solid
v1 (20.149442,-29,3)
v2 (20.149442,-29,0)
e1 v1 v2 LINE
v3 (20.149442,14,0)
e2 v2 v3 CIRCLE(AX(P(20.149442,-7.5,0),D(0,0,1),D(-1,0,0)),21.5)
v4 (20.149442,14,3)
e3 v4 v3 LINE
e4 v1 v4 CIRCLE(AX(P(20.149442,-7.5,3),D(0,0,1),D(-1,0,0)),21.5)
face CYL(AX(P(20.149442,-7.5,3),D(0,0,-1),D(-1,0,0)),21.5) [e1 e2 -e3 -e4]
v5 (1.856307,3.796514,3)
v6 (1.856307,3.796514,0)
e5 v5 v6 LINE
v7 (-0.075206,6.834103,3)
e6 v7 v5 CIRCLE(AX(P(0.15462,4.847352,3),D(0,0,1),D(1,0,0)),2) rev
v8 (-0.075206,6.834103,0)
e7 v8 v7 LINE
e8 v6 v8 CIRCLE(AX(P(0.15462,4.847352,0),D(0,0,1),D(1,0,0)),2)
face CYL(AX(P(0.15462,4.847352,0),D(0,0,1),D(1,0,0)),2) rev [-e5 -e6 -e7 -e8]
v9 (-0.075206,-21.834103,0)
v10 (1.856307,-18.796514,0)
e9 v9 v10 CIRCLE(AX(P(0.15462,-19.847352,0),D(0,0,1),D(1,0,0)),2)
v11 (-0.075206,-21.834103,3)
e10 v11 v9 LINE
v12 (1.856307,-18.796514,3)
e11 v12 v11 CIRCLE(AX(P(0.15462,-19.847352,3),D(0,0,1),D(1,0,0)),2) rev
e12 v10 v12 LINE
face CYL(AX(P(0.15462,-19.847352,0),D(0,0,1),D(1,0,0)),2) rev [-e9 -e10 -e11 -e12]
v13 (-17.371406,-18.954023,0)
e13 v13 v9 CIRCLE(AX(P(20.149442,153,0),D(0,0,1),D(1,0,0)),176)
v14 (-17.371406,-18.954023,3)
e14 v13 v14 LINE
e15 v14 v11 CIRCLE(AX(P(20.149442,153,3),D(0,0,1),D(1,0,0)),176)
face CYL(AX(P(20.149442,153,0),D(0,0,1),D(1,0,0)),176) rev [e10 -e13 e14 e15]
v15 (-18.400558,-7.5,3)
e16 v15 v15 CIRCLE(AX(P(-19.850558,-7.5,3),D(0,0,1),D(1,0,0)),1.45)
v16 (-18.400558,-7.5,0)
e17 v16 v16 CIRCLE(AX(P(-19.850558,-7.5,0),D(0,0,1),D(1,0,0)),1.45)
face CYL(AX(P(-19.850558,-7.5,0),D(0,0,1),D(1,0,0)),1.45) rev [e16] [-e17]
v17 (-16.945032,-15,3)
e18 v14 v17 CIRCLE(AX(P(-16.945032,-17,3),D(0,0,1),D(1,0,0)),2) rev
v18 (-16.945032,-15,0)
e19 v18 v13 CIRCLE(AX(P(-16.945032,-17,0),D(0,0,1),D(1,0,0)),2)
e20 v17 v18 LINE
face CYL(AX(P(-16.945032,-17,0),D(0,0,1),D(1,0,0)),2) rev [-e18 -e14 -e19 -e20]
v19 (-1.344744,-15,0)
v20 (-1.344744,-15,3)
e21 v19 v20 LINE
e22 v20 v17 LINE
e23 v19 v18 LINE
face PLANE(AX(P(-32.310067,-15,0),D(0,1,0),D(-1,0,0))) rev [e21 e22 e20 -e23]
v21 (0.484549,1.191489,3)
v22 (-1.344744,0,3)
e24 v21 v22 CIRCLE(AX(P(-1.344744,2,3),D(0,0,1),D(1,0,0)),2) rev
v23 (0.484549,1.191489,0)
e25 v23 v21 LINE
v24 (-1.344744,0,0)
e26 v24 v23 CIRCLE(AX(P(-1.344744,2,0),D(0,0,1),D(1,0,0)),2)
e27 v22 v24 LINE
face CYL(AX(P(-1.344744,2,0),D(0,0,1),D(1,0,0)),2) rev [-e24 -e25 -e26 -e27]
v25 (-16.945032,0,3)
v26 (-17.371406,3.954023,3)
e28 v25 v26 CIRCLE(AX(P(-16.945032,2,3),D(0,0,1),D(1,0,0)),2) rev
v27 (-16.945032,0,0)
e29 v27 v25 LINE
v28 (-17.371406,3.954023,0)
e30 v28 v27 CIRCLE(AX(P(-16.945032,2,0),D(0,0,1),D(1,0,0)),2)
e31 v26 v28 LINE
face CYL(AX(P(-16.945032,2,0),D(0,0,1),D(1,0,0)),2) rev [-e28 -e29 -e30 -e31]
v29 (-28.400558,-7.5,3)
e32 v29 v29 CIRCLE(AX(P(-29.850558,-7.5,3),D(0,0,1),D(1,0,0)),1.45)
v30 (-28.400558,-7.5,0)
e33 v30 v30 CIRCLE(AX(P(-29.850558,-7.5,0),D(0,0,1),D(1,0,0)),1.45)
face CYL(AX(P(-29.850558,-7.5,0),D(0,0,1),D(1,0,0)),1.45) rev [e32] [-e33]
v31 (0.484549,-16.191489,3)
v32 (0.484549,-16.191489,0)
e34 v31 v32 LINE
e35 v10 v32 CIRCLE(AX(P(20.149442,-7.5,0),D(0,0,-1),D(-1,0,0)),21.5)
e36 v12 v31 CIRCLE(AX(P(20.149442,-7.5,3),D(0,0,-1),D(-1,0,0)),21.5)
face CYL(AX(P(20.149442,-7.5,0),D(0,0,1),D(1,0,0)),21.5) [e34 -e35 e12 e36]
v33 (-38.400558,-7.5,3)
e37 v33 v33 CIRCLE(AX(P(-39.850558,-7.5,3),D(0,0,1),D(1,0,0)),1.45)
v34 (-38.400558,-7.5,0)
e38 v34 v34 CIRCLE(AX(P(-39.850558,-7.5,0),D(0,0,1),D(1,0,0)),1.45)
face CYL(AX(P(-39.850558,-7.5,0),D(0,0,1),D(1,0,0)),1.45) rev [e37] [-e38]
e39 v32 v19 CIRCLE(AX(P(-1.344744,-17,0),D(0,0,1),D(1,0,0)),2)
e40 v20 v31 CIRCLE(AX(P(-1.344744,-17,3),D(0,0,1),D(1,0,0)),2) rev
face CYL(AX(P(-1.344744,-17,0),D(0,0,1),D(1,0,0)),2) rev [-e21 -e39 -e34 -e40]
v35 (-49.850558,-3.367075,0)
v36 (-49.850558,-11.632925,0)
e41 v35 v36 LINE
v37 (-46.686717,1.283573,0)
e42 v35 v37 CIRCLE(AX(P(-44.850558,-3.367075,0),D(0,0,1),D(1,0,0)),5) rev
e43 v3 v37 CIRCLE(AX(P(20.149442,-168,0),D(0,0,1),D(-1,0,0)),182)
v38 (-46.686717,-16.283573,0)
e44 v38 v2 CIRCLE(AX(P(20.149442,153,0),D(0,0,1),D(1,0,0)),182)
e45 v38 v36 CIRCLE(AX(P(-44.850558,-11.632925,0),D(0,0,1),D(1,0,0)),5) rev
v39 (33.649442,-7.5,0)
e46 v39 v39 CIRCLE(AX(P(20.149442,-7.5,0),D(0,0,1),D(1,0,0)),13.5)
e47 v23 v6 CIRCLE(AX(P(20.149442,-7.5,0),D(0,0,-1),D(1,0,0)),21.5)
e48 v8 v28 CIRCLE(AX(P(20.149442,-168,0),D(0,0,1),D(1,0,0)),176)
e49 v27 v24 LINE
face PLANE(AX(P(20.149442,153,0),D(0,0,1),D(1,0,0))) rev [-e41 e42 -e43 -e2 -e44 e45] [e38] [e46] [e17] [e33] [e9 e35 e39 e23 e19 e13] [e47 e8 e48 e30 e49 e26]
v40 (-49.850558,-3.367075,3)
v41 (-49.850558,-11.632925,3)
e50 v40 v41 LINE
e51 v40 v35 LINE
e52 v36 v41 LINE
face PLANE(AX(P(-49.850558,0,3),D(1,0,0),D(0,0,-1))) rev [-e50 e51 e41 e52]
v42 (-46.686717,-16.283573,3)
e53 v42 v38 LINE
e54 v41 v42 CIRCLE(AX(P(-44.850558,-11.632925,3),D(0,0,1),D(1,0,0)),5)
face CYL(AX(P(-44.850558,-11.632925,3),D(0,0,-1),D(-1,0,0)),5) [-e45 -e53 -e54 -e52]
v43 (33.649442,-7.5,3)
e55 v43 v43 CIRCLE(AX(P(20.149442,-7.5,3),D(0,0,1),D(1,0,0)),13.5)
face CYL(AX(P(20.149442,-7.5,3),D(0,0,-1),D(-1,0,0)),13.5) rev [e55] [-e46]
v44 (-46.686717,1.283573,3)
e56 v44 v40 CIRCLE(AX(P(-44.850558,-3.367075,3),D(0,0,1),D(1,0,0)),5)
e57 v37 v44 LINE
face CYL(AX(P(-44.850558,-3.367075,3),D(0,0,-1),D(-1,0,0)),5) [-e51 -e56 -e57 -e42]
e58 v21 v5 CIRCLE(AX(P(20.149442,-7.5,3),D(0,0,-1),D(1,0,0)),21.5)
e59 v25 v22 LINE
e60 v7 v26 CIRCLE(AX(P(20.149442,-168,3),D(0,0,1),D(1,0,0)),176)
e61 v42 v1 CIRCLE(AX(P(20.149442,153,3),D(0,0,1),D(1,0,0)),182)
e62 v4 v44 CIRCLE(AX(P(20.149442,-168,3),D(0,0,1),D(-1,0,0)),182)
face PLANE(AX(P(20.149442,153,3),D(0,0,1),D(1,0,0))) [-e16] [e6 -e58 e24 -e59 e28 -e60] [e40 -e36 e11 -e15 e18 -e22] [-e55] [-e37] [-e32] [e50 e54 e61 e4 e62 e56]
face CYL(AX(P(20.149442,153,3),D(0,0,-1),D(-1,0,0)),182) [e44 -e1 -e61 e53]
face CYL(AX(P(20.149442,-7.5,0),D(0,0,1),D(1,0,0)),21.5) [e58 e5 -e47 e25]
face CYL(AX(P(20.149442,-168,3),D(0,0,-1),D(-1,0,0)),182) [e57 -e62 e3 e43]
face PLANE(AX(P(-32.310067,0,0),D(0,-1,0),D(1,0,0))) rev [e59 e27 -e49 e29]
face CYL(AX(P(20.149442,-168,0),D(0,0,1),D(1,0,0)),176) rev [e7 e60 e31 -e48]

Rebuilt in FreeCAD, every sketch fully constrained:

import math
import FreeCAD as App
import Part
import Sketcher


def edges_at(feature, points):
    """Names of the edges that pass closest to the given points."""
    edges = feature.Shape.Edges
    near = lambda p: min(range(len(edges)), key=lambda i: edges[i].distToShape(Part.Vertex(*p))[0])
    return sorted({f"Edge{near(p) + 1}" for p in points})

doc = App.newDocument("Part")
params = doc.addObject("Spreadsheet::Sheet", "Params")
for row, (alias, value) in enumerate([
    ("sketch1_diameter", "27 mm"),
    ("sketch1_radius", "182 mm"),
    ("sketch1_radius2", "21.5 mm"),
    ("sketch1_height", "15 mm"),
    ("pad1_length", "3 mm"),
    ("sketch2_diameter", "2.9 mm"),
    ("fillet_radius", "5 mm"),
    ("sketch3_radius", "176 mm"),
    ("sketch3_radius2", "21.5 mm"),
    ("fillet2_radius", "2 mm"),
], start=1):
    params.set(f"A{row}", alias)
    params.set(f"B{row}", "=" + value)
    params.setAlias(f"B{row}", alias)

body = doc.addObject("PartDesign::Body", "Body")

# Sketch on XY plane
sketch1 = body.newObject("Sketcher::SketchObject", "Sketch")
sketch1.AttachmentSupport = (doc.getObject("XY_Plane"), [""])
sketch1.MapMode = "FlatFace"
sketch1.addGeometry(Part.LineSegment(App.Vector(-50, 0, 0), App.Vector(-50, -15, 0)), False)
sketch1.addGeometry(Part.ArcOfCircle(Part.Circle(App.Vector(20, 153, 0), App.Vector(0, 0, 1), 182), math.radians(-113), math.radians(-90)), False)
sketch1.addGeometry(Part.ArcOfCircle(Part.Circle(App.Vector(20, -8, 0), App.Vector(0, 0, 1), 22), math.radians(-90), math.radians(90)), False)
sketch1.addGeometry(Part.ArcOfCircle(Part.Circle(App.Vector(20, -168, 0), App.Vector(0, 0, 1), 182), math.radians(90), math.radians(113)), False)
sketch1.addGeometry(Part.Circle(App.Vector(20, -8, 0), App.Vector(0, 0, 1), 14), False)
sketch1.addConstraint(Sketcher.Constraint("Coincident", 0, 2, 1, 1))
sketch1.addConstraint(Sketcher.Constraint("Tangent", 1, 2, 2, 1))
sketch1.addConstraint(Sketcher.Constraint("Tangent", 2, 2, 3, 1))
sketch1.addConstraint(Sketcher.Constraint("Coincident", 3, 2, 0, 1))
sketch1.addConstraint(Sketcher.Constraint("Vertical", 0))
sketch1.addConstraint(Sketcher.Constraint("Coincident", 4, 3, 2, 3))
sketch1.addConstraint(Sketcher.Constraint("Equal", 1, 3))
sketch1.addConstraint(Sketcher.Constraint("PointOnObject", 3, 2, -1))
sketch1.addConstraint(Sketcher.Constraint("Vertical", 1, 3, 2, 3))
sketch1.addConstraint(Sketcher.Constraint("Vertical", 2, 3, 3, 3))
sketch1.addConstraint(Sketcher.Constraint("Diameter", 4, 27.0))
sketch1.addConstraint(Sketcher.Constraint("Radius", 1, 182.0))
sketch1.addConstraint(Sketcher.Constraint("Radius", 2, 21.5))
sketch1.addConstraint(Sketcher.Constraint("DistanceY", 0, 2, 0, 1, 15.0))
sketch1.addConstraint(Sketcher.Constraint("DistanceX", -1, 1, 1, 3, 20.149442))
sketch1.setExpression("Constraints[10]", "Params.sketch1_diameter")
sketch1.setExpression("Constraints[11]", "Params.sketch1_radius")
sketch1.setExpression("Constraints[12]", "Params.sketch1_radius2")
sketch1.setExpression("Constraints[13]", "Params.sketch1_height")
pad1 = body.newObject("PartDesign::Pad", "Pad")
pad1.Profile = sketch1
pad1.setExpression("Length", "Params.pad1_length")

# Sketch on XY plane
sketch2 = body.newObject("Sketcher::SketchObject", "Sketch001")
sketch2.AttachmentSupport = (doc.getObject("XY_Plane"), [""])
sketch2.MapMode = "FlatFace"
sketch2.AttachmentOffset = App.Placement(App.Vector(0, 0, 3), App.Rotation())
sketch2.addGeometry(Part.Circle(App.Vector(-39.9, -7.5, 0), App.Vector(0, 0, 1), 1.4), False)
sketch2.addGeometry(Part.Circle(App.Vector(-29.9, -7.5, 0), App.Vector(0, 0, 1), 1.4), False)
sketch2.addGeometry(Part.Circle(App.Vector(-19.9, -7.5, 0), App.Vector(0, 0, 1), 1.4), False)
sketch2.addConstraint(Sketcher.Constraint("Equal", 0, 1))
sketch2.addConstraint(Sketcher.Constraint("Equal", 1, 2))
sketch2.addConstraint(Sketcher.Constraint("Horizontal", 0, 3, 1, 3))
sketch2.addConstraint(Sketcher.Constraint("Horizontal", 1, 3, 2, 3))
sketch2.addConstraint(Sketcher.Constraint("Diameter", 0, 2.9))
sketch2.addConstraint(Sketcher.Constraint("DistanceX", 0, 3, 1, 3, 10.0))
sketch2.addConstraint(Sketcher.Constraint("DistanceX", 1, 3, 2, 3, 10.0))
sketch2.addConstraint(Sketcher.Constraint("DistanceY", 0, 3, -1, 1, 7.5))
sketch2.addConstraint(Sketcher.Constraint("DistanceX", 0, 3, -1, 1, 39.850558))
sketch2.setExpression("Constraints[4]", "Params.sketch2_diameter")
pocket1 = body.newObject("PartDesign::Pocket", "Pocket")
pocket1.Profile = sketch2
pocket1.Type = "ThroughAll"
doc.recompute()

fillet = body.newObject("PartDesign::Fillet", "Fillet")
fillet.Base = (pocket1, edges_at(pocket1, [(-49.851, -15, 1.5), (-49.851, 0, 1.5)]))
fillet.setExpression("Radius", "Params.fillet_radius")

# Sketch on XY plane
sketch3 = body.newObject("Sketcher::SketchObject", "Sketch002")
sketch3.AttachmentSupport = (doc.getObject("XY_Plane"), [""])
sketch3.MapMode = "FlatFace"
sketch3.AttachmentOffset = App.Placement(App.Vector(0, 0, 3), App.Rotation())
sketch3.addGeometry(Part.LineSegment(App.Vector(-32, 0, 0), App.Vector(0, 0, 0)), False)
sketch3.addGeometry(Part.ArcOfCircle(Part.Circle(App.Vector(20, -8, 0), App.Vector(0, 0, 1), 22), math.radians(136), math.radians(160)), False)
sketch3.addGeometry(Part.ArcOfCircle(Part.Circle(App.Vector(20, -168, 0), App.Vector(0, 0, 1), 176), math.radians(95.08), math.radians(107.34)), False)
sketch3.addGeometry(Part.LineSegment(App.Vector(0, -15, 0), App.Vector(-32, -15, 0)), False)
sketch3.addGeometry(Part.ArcOfCircle(Part.Circle(App.Vector(20, 153, 0), App.Vector(0, 0, 1), 176), math.radians(-107.34), math.radians(-95.08)), False)
sketch3.addGeometry(Part.ArcOfCircle(Part.Circle(App.Vector(20, -7, 0), App.Vector(0, 0, 1), 22), math.radians(-160), math.radians(-136)), False)
sketch3.addConstraint(Sketcher.Constraint("Coincident", 0, 2, 1, 2))
sketch3.addConstraint(Sketcher.Constraint("Coincident", 1, 1, 2, 1))
sketch3.addConstraint(Sketcher.Constraint("Coincident", 2, 2, 0, 1))
sketch3.addConstraint(Sketcher.Constraint("Coincident", 3, 2, 4, 1))
sketch3.addConstraint(Sketcher.Constraint("Coincident", 4, 2, 5, 2))
sketch3.addConstraint(Sketcher.Constraint("Coincident", 5, 1, 3, 1))
sketch3.addConstraint(Sketcher.Constraint("Horizontal", 0))
sketch3.addConstraint(Sketcher.Constraint("Horizontal", 3))
sketch3.addConstraint(Sketcher.Constraint("Coincident", 0, 2, -1, 1))
sketch3.addConstraint(Sketcher.Constraint("Coincident", 5, 3, 1, 3))
sketch3.addConstraint(Sketcher.Constraint("Equal", 2, 4))
sketch3.addConstraint(Sketcher.Constraint("Equal", 1, 5))
sketch3.addConstraint(Sketcher.Constraint("PointOnObject", 5, 1, -2))
sketch3.addConstraint(Sketcher.Constraint("Vertical", 1, 3, 2, 3))
sketch3.addConstraint(Sketcher.Constraint("Vertical", 2, 3, 4, 3))
sketch3.addConstraint(Sketcher.Constraint("Vertical", 2, 2, 3, 2))
sketch3.addConstraint(Sketcher.Constraint("Radius", 2, 176.0))
sketch3.addConstraint(Sketcher.Constraint("Radius", 1, 21.5))
sketch3.addConstraint(Sketcher.Constraint("DistanceY", 2, 3, -1, 1, 168.0))
sketch3.addConstraint(Sketcher.Constraint("DistanceY", -1, 1, 4, 3, 153.0))
sketch3.setExpression("Constraints[16]", "Params.sketch3_radius")
sketch3.setExpression("Constraints[17]", "Params.sketch3_radius2")
pocket2 = body.newObject("PartDesign::Pocket", "Pocket001")
pocket2.Profile = sketch3
pocket2.Type = "ThroughAll"
doc.recompute()

fillet2 = body.newObject("PartDesign::Fillet", "Fillet001")
fillet2.Base = (pocket2, edges_at(pocket2, [
    (0, -15, 1.5),
    (4.562, -22.308, 1.5),
    (-32.31, -15, 1.5),
    (4.562, 7.308, 1.5),
    (0, 0, 1.5),
    (-32.31, 0, 1.5),
]))
fillet2.setExpression("Radius", "Params.fillet2_radius")

doc.recompute()
